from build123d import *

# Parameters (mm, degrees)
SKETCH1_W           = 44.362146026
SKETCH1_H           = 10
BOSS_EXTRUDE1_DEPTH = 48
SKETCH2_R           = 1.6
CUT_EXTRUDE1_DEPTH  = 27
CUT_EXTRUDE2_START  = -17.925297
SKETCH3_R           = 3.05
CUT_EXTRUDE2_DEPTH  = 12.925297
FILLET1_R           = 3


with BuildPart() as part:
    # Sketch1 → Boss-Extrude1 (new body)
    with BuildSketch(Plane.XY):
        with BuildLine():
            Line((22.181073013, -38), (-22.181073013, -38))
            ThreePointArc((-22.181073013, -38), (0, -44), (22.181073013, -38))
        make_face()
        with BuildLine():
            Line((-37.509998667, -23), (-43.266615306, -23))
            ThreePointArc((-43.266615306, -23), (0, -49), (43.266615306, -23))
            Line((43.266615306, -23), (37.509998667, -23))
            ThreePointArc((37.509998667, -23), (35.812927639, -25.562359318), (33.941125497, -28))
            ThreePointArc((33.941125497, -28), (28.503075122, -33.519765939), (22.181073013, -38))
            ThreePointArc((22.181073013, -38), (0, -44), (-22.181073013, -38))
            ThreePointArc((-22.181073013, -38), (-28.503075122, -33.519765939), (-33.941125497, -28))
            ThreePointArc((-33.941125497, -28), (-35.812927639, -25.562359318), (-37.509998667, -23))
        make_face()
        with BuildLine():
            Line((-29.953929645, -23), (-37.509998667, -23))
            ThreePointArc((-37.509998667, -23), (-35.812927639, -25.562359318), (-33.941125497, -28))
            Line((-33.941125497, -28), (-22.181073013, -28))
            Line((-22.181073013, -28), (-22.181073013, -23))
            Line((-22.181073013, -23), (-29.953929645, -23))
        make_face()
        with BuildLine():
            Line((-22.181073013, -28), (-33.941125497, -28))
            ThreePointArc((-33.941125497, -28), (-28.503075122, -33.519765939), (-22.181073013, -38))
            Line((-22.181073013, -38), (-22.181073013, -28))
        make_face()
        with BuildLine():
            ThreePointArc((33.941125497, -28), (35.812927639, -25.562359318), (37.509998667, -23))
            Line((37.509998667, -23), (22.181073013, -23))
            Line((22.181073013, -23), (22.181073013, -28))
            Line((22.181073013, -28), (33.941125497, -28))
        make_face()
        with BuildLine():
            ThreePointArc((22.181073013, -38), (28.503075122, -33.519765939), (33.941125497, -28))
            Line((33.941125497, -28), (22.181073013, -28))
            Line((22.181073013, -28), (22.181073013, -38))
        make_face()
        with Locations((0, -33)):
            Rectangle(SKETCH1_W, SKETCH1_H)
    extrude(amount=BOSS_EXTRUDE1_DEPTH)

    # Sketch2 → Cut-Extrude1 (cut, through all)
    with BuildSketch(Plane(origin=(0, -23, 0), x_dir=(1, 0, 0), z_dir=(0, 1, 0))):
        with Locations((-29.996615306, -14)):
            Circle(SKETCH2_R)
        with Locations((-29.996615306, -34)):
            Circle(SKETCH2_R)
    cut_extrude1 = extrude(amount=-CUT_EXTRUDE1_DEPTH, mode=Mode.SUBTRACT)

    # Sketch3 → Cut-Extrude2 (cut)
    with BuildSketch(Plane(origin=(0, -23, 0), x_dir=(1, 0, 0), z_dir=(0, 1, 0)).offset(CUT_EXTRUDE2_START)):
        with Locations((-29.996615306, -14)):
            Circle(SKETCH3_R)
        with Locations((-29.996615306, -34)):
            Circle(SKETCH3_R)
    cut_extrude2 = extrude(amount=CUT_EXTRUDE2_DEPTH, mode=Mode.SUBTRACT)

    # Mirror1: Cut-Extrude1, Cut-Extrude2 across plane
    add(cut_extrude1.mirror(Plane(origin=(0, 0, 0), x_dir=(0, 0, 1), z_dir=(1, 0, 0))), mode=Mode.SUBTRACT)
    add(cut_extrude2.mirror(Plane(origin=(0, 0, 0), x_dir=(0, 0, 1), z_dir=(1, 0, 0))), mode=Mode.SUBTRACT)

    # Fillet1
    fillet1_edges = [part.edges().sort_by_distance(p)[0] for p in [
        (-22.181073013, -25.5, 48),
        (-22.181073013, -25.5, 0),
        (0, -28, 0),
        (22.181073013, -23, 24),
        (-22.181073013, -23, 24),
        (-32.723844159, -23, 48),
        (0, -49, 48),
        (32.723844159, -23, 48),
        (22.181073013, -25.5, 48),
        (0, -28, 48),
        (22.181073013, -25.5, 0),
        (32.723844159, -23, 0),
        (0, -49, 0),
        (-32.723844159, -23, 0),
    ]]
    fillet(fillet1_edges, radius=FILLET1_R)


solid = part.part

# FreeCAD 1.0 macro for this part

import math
import FreeCAD as App
import Part
import Sketcher

V = App.Vector
Q = App.Units.Quantity


def edges_at(feature, points):
    """Names of the edges that pass closest to the given points."""
    edges = feature.Shape.Edges
    near = lambda p: min(range(len(edges)), key=lambda i: edges[i].distToShape(Part.Vertex(*p))[0])
    return sorted({f"Edge{near(p) + 1}" for p in points})

doc = App.newDocument("Part")
params = doc.addObject("Spreadsheet::Sheet", "Params")
for row, (alias, value) in enumerate([
    ("sketch1_radius", "49 mm"),
    ("sketch1_height", "5 mm"),
    ("pad1_length", "48 mm"),
    ("sketch2_diameter", "3.2 mm"),
    ("sketch3_diameter", "6.1 mm"),
    ("pocket2_length", "12.925297 mm"),
    ("fillet_radius", "3 mm"),
], start=1):
    params.set(f"A{row}", alias)
    params.set(f"B{row}", "=" + value)
    params.setAlias(f"B{row}", alias)

body = doc.addObject("PartDesign::Body", "Body")

# Sketch on XY plane
sketch1 = doc.addObject("Sketcher::SketchObject", "Sketch")
body.addObject(sketch1)
sketch1.AttachmentSupport = (doc.XY_Plane, [""])
sketch1.MapMode = "FlatFace"
sketch1.addGeometry([
    Part.LineSegment(V(-22.181073, -28, 0), V(-22.181073, -23, 0)),  # 0
    Part.LineSegment(V(-22.181073, -23, 0), V(-43.266615, -23, 0)),  # 1
    Part.ArcOfCircle(Part.Circle(V(0, 0, 0), V(0, 0, 1), 49), math.radians(-152.005438), math.radians(-27.994562)),  # 2
    Part.LineSegment(V(43.266615, -23, 0), V(22.181073, -23, 0)),  # 3
    Part.LineSegment(V(22.181073, -23, 0), V(22.181073, -28, 0)),  # 4
    Part.LineSegment(V(22.181073, -28, 0), V(-22.181073, -28, 0)),  # 5
], False)
sketch1.addConstraint([
    Sketcher.Constraint("Coincident", 0, 2, 1, 1),
    Sketcher.Constraint("Coincident", 1, 2, 2, 1),
    Sketcher.Constraint("Coincident", 2, 2, 3, 1),
    Sketcher.Constraint("Coincident", 3, 2, 4, 1),
    Sketcher.Constraint("Coincident", 4, 2, 5, 1),
    Sketcher.Constraint("Coincident", 5, 2, 0, 1),
    Sketcher.Constraint("Vertical", 0),
    Sketcher.Constraint("Horizontal", 1),
    Sketcher.Constraint("Horizontal", 3),
    Sketcher.Constraint("Vertical", 4),
    Sketcher.Constraint("Horizontal", 5),
    Sketcher.Constraint("Coincident", 2, 3, -1, 1),
    Sketcher.Constraint("Symmetric", 0, 2, 3, 2, -2),
    Sketcher.Constraint("Radius", 2, Q("49 mm")),
    Sketcher.Constraint("DistanceY", 0, 1, 0, 2, Q("5 mm")),
    Sketcher.Constraint("DistanceY", 0, 2, -1, 1, Q("23 mm")),
    Sketcher.Constraint("DistanceX", 1, 2, 1, 1, Q("21.085542 mm")),
])
sketch1.setExpression("Constraints[13]", "Params.sketch1_radius")
sketch1.setExpression("Constraints[14]", "Params.sketch1_height")
pad1 = doc.addObject("PartDesign::Pad", "Pad")
body.addObject(pad1)
pad1.Profile = sketch1
pad1.setExpression("Length", "Params.pad1_length")

# Sketch on XZ plane
sketch2 = doc.addObject("Sketcher::SketchObject", "Sketch001")
body.addObject(sketch2)
sketch2.AttachmentSupport = (doc.XZ_Plane, [""])
sketch2.MapMode = "FlatFace"
sketch2.AttachmentOffset = App.Placement(V(0, 0, 23), App.Rotation())
sketch2.addGeometry([
    Part.Circle(V(-29.996615, 14, 0), V(0, 0, 1), 1.6),
    Part.Circle(V(-29.996615, 34, 0), V(0, 0, 1), 1.6),
], False)
sketch2.addConstraint([
    Sketcher.Constraint("Equal", 0, 1),
    Sketcher.Constraint("Vertical", 0, 3, 1, 3),
    Sketcher.Constraint("Diameter", 0, Q("3.2 mm")),
    Sketcher.Constraint("DistanceY", -1, 1, 0, 3, Q("14 mm")),
    Sketcher.Constraint("DistanceY", -1, 1, 1, 3, Q("34 mm")),
    Sketcher.Constraint("DistanceX", 0, 3, -1, 1, Q("29.996615 mm")),
])
sketch2.setExpression("Constraints[2]", "Params.sketch2_diameter")
pocket1 = doc.addObject("PartDesign::Pocket", "Pocket")
body.addObject(pocket1)
pocket1.Profile = sketch2
pocket1.Type = "ThroughAll"
pocket1.Reversed = True

# Sketch on XZ plane
sketch3 = doc.addObject("Sketcher::SketchObject", "Sketch002")
body.addObject(sketch3)
sketch3.AttachmentSupport = (doc.XZ_Plane, [""])
sketch3.MapMode = "FlatFace"
sketch3.AttachmentOffset = App.Placement(V(0, 0, 40.925297), App.Rotation())
sketch3.addGeometry([
    Part.Circle(V(-29.996615, 14, 0), V(0, 0, 1), 3.05),
    Part.Circle(V(-29.996615, 34, 0), V(0, 0, 1), 3.05),
], False)
sketch3.addConstraint([
    Sketcher.Constraint("Equal", 0, 1),
    Sketcher.Constraint("Vertical", 0, 3, 1, 3),
    Sketcher.Constraint("Diameter", 0, Q("6.1 mm")),
    Sketcher.Constraint("DistanceY", -1, 1, 0, 3, Q("14 mm")),
    Sketcher.Constraint("DistanceY", -1, 1, 1, 3, Q("34 mm")),
    Sketcher.Constraint("DistanceX", 0, 3, -1, 1, Q("29.996615 mm")),
])
sketch3.setExpression("Constraints[2]", "Params.sketch3_diameter")
pocket2 = doc.addObject("PartDesign::Pocket", "Pocket001")
body.addObject(pocket2)
pocket2.Profile = sketch3
pocket2.setExpression("Length", "Params.pocket2_length")
doc.recompute()

mirrored = doc.addObject("PartDesign::Mirrored", "Mirrored")
body.addObject(mirrored)
mirrored.Originals = [pocket1, pocket2]
mirrored.MirrorPlane = (doc.YZ_Plane, [""])
body.Tip = mirrored
doc.recompute()

fillet = doc.addObject("PartDesign::Fillet", "Fillet")
body.addObject(fillet)
fillet.Base = (mirrored, edges_at(mirrored, [
    (-22.181, -25.5, 48),
    (-22.181, -25.5, 0),
    (0, -28, 0),
    (22.181, -23, 24),
    (-22.181, -23, 24),
    (-32.724, -23, 48),
    (0, -49, 48),
    (32.724, -23, 48),
    (22.181, -25.5, 48),
    (0, -28, 48),
    (22.181, -25.5, 0),
    (32.724, -23, 0),
    (0, -49, 0),
    (-32.724, -23, 0),
]))
fillet.setExpression("Radius", "Params.fillet_radius")

doc.recompute()
